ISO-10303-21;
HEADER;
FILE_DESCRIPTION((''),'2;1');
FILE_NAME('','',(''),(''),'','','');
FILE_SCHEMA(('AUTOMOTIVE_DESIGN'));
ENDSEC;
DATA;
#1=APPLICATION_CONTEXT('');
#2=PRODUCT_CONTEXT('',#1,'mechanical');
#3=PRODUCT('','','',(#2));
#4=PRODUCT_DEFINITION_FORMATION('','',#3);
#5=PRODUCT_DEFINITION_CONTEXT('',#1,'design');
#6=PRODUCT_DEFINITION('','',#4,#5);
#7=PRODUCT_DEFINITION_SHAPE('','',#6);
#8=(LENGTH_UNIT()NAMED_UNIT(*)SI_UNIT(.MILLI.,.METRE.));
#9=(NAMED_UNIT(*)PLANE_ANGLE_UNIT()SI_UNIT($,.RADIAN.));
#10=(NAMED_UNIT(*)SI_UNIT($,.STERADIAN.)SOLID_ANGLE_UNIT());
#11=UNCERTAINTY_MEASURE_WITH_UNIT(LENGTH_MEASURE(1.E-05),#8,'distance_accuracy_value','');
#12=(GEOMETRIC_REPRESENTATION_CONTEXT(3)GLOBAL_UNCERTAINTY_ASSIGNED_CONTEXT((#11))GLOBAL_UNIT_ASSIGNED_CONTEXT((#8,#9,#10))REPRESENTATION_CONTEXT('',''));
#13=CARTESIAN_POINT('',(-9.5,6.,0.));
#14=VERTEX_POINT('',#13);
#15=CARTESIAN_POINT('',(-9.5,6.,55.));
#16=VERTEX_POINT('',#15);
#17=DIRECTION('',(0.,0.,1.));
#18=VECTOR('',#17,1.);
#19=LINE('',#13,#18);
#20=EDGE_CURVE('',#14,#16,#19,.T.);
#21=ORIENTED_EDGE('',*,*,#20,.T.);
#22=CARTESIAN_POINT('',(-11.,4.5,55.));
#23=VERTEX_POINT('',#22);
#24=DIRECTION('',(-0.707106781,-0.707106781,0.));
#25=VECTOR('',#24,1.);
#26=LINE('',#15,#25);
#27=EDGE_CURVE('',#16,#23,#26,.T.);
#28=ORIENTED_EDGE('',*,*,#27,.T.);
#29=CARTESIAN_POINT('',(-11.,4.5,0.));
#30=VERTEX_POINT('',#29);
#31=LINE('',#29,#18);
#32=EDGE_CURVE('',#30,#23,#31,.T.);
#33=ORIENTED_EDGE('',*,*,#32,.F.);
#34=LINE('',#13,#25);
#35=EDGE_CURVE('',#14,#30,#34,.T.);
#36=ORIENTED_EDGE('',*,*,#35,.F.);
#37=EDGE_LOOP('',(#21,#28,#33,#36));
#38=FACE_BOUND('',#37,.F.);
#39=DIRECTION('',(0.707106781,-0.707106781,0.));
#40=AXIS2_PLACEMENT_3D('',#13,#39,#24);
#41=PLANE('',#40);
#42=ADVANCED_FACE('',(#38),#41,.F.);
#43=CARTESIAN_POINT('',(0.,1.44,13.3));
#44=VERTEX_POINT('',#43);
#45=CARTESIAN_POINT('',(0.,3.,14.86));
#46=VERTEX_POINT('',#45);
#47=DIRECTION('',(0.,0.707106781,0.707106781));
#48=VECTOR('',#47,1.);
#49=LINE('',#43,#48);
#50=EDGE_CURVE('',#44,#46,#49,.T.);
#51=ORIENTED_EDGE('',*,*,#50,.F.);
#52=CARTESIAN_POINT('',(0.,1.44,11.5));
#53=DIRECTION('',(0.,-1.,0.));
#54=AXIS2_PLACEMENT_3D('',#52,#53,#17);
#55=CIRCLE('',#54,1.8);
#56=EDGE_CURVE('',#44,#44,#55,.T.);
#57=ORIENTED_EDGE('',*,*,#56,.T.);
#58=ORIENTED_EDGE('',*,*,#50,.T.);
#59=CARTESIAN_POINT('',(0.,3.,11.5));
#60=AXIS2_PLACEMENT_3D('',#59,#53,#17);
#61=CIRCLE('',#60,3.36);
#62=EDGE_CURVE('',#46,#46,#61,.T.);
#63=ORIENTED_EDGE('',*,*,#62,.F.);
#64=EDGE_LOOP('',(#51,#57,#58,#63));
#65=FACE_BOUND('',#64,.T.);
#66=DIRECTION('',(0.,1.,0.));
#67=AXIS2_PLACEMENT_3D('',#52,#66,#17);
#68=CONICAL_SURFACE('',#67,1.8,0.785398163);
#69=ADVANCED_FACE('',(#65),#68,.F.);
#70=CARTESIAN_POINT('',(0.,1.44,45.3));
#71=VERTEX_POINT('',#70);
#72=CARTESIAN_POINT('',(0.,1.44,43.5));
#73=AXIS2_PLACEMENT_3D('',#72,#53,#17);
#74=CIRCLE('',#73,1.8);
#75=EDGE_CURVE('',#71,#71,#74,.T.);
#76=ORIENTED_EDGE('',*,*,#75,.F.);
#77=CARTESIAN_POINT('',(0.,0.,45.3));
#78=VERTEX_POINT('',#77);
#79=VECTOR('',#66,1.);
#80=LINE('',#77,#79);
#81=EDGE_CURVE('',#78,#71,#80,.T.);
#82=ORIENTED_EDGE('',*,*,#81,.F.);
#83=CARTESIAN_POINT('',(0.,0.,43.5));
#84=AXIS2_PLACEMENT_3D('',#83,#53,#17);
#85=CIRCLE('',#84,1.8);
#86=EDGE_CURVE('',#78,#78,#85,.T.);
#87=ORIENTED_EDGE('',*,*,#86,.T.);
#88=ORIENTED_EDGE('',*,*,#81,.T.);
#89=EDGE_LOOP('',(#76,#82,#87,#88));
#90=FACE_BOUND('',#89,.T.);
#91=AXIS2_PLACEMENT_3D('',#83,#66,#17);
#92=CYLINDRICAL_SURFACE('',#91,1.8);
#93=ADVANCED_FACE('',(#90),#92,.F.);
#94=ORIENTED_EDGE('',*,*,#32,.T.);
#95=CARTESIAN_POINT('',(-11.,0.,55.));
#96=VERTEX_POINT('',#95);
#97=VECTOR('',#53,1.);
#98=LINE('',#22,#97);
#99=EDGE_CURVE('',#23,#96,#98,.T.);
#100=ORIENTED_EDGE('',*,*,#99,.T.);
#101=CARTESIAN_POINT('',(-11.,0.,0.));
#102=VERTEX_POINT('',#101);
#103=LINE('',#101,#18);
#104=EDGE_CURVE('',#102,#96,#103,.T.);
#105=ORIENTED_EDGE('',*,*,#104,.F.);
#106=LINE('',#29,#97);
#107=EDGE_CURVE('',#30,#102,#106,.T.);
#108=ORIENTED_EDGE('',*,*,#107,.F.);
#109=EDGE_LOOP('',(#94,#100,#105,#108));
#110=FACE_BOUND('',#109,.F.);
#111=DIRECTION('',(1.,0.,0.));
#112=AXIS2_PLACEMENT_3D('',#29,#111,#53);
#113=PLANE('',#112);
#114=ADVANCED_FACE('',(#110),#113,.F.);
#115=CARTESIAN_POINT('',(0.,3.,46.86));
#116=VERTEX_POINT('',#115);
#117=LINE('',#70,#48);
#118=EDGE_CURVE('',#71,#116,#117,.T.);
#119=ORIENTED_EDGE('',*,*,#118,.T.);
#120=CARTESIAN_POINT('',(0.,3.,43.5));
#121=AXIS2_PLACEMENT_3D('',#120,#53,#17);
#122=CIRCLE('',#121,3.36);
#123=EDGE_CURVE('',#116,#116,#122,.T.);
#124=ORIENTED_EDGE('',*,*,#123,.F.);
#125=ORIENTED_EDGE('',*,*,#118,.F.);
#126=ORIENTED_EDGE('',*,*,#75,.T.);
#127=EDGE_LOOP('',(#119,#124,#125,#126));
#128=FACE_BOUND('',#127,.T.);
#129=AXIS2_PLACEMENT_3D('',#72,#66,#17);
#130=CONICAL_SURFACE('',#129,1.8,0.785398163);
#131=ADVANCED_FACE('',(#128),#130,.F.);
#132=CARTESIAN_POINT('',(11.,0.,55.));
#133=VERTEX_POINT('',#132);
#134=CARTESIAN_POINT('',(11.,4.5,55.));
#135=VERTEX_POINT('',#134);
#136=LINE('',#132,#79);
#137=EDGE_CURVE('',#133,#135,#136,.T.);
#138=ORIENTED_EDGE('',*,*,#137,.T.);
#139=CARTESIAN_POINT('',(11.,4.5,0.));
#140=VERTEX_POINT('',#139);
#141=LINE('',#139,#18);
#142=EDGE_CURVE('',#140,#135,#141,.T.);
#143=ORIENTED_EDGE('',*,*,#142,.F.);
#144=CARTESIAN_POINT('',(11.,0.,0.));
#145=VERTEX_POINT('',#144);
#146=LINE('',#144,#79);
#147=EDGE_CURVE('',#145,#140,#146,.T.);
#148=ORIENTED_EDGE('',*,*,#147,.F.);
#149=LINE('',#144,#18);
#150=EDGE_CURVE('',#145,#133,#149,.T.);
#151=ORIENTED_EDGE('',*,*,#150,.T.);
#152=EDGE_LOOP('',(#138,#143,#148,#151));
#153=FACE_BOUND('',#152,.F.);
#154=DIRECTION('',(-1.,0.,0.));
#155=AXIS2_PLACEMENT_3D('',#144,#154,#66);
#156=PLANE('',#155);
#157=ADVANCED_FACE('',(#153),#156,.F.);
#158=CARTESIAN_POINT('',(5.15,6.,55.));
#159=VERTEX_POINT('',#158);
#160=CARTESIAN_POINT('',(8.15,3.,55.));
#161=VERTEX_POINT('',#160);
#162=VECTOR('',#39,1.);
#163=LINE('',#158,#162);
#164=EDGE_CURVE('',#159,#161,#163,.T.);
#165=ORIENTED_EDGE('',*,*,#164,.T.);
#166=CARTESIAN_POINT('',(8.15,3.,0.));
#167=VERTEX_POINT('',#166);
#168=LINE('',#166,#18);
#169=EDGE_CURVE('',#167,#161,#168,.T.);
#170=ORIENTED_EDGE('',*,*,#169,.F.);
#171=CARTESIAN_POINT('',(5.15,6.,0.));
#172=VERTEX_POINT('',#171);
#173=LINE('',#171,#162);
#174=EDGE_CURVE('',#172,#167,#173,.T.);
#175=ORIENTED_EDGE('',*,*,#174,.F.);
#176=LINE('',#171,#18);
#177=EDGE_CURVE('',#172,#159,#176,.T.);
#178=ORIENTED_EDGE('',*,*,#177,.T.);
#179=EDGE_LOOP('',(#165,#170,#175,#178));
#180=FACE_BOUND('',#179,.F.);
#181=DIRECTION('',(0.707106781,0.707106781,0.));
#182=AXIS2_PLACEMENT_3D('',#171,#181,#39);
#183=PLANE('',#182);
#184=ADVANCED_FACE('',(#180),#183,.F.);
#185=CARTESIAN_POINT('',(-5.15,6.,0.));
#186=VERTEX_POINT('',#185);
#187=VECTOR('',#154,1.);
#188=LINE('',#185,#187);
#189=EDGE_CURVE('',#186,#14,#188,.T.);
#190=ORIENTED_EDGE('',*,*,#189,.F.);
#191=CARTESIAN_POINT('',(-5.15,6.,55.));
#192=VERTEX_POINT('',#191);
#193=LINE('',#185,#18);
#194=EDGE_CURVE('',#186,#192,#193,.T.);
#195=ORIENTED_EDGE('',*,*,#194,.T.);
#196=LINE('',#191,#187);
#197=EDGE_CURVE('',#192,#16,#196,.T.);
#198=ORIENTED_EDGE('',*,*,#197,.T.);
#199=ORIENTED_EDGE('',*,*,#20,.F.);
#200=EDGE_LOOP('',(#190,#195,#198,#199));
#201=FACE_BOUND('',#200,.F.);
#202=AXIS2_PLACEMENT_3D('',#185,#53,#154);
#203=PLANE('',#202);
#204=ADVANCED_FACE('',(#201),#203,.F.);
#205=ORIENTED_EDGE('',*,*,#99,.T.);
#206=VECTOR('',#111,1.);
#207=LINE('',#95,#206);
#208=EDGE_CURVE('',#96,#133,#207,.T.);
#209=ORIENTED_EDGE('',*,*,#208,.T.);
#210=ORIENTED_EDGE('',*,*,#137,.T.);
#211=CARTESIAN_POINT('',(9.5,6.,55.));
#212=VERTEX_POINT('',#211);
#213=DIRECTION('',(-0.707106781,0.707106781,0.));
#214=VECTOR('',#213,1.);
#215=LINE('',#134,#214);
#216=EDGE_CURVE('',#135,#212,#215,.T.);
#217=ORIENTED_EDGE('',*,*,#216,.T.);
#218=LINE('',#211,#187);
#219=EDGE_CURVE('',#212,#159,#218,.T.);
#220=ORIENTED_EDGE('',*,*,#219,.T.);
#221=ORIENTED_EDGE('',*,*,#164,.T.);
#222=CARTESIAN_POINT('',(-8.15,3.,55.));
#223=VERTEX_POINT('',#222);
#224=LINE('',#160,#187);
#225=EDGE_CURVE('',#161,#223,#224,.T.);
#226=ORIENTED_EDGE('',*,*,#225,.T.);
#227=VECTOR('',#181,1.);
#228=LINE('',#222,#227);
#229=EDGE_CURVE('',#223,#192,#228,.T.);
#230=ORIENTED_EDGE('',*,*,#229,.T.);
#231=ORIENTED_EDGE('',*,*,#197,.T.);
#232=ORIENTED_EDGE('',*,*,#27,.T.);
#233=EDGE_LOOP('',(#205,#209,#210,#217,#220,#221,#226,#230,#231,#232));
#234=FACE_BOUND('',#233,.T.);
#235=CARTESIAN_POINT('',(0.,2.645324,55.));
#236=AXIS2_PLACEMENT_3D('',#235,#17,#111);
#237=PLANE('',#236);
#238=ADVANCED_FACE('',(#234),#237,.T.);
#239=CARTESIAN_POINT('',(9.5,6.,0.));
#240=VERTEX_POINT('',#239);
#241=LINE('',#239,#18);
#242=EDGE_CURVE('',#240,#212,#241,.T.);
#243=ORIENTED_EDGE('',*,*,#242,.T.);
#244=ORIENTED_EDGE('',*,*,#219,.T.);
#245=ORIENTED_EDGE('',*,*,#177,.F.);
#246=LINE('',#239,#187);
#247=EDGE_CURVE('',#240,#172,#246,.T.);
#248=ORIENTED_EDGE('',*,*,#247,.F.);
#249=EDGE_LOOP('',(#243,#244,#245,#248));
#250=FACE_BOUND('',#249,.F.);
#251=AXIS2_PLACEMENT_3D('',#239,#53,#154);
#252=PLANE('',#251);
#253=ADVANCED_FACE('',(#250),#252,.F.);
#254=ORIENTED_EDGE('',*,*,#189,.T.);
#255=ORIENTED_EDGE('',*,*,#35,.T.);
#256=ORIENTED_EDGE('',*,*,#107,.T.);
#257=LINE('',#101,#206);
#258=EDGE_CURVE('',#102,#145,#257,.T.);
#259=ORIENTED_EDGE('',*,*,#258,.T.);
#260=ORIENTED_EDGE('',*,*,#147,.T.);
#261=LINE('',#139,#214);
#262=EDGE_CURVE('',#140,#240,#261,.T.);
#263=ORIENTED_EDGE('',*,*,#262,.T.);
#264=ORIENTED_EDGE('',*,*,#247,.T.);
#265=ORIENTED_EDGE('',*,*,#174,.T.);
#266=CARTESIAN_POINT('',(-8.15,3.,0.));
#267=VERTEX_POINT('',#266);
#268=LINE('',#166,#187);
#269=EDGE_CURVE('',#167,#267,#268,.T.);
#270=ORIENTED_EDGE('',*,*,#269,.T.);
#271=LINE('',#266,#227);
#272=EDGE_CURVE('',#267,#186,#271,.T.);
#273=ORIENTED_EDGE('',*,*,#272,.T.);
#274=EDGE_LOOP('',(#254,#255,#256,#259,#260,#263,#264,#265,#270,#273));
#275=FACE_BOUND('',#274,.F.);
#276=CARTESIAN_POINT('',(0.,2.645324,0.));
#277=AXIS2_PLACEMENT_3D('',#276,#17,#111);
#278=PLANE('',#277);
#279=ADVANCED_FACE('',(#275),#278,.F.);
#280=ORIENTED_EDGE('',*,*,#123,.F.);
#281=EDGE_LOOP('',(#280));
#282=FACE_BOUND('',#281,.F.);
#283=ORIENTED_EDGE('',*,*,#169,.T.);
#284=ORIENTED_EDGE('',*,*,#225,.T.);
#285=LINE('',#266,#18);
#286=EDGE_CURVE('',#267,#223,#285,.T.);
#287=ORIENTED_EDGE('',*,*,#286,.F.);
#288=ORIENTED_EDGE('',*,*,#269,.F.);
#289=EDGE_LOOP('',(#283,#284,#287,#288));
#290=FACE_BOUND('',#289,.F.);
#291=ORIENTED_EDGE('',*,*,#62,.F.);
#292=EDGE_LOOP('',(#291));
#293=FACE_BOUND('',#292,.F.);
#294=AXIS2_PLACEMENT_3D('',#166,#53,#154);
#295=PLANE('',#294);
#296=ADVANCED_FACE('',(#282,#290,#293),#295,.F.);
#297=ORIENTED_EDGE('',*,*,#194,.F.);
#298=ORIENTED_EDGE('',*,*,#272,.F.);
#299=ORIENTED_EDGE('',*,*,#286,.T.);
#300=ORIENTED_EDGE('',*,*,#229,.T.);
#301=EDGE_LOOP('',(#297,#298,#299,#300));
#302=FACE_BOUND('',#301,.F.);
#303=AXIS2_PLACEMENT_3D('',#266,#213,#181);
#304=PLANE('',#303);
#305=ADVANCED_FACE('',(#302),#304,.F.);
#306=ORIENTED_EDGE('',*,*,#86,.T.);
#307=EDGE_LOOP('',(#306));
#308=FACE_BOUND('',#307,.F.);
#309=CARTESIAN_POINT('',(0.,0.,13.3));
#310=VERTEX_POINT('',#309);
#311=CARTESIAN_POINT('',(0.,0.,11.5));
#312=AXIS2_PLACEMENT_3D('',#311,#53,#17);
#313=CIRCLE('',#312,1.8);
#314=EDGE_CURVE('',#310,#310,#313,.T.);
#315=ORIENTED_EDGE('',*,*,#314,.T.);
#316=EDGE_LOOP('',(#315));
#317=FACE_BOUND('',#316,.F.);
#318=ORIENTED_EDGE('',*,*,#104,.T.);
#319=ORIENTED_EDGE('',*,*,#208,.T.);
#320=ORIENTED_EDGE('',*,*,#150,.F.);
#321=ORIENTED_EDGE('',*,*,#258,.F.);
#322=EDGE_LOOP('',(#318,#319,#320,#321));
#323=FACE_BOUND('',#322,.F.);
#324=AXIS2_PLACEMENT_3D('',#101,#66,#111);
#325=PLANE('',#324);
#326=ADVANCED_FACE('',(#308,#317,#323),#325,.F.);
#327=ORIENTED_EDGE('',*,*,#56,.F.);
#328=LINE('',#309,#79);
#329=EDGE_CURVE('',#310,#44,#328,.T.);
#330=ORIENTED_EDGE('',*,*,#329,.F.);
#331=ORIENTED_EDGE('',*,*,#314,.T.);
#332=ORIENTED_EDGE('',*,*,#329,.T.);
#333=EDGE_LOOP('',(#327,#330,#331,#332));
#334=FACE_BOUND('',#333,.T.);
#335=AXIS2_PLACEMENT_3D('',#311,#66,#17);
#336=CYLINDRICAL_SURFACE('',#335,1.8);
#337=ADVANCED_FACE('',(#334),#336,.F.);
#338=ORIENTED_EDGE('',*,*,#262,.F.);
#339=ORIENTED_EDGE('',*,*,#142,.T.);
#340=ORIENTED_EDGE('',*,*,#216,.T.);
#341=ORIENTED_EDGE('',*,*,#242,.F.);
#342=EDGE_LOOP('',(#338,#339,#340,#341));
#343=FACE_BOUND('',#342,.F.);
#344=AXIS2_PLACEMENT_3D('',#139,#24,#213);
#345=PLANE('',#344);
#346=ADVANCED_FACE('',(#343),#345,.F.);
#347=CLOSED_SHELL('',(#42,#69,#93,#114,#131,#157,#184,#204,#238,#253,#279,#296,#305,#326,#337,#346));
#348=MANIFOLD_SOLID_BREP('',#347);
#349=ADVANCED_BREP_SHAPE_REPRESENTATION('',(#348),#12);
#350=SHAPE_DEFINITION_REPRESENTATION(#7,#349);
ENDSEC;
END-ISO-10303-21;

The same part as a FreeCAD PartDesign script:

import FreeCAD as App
import Part
import Sketcher

V = App.Vector
Q = App.Units.Quantity

doc = App.newDocument("Part")
params = doc.addObject("Spreadsheet::Sheet", "Params")
for row, (alias, value) in enumerate([
    ("sketch1_width", "22 mm"),
    ("sketch1_width2", "16.3 mm"),
    ("sketch1_height", "4.5 mm"),
    ("pad1_length", "55 mm"),
    ("sketch2_width", "3 mm"),
    ("sketch2_height", "1.8 mm"),
    ("sketch2_width2", "1.44 mm"),
    ("groove_angle", "360 deg"),
    ("linearpattern_pitch", "32 mm"),
], start=1):
    params.set(f"A{row}", alias)
    params.set(f"B{row}", "=" + value)
    params.setAlias(f"B{row}", alias)

body = doc.addObject("PartDesign::Body", "Body")

sketch1 = body.newObject("Sketcher::SketchObject", "Sketch")
sketch1.AttachmentSupport = (doc.getObject("XY_Plane"), [""])
sketch1.MapMode = "FlatFace"
sketch1.addGeometry([
    Part.LineSegment(V(-11, 0, 0), V(11, 0, 0)),
    Part.LineSegment(V(11, 0, 0), V(11, 4.5, 0)),
    Part.LineSegment(V(11, 4.5, 0), V(9.5, 6, 0)),
    Part.LineSegment(V(9.5, 6, 0), V(5.2, 6, 0)),
    Part.LineSegment(V(5.2, 6, 0), V(8.2, 3, 0)),
    Part.LineSegment(V(8.2, 3, 0), V(-8.2, 3, 0)),
    Part.LineSegment(V(-8.2, 3, 0), V(-5.2, 6, 0)),
    Part.LineSegment(V(-5.2, 6, 0), V(-9.5, 6, 0)),
    Part.LineSegment(V(-9.5, 6, 0), V(-11, 4.5, 0)),
    Part.LineSegment(V(-11, 4.5, 0), V(-11, 0, 0)),
], False)
sketch1.addConstraint([
    Sketcher.Constraint("Coincident", 0, 2, 1, 1),
    Sketcher.Constraint("Coincident", 1, 2, 2, 1),
    Sketcher.Constraint("Coincident", 2, 2, 3, 1),
    Sketcher.Constraint("Coincident", 3, 2, 4, 1),
    Sketcher.Constraint("Coincident", 4, 2, 5, 1),
    Sketcher.Constraint("Coincident", 5, 2, 6, 1),
    Sketcher.Constraint("Coincident", 6, 2, 7, 1),
    Sketcher.Constraint("Coincident", 7, 2, 8, 1),
    Sketcher.Constraint("Coincident", 8, 2, 9, 1),
    Sketcher.Constraint("Coincident", 9, 2, 0, 1),
    Sketcher.Constraint("Horizontal", 0),
    Sketcher.Constraint("Vertical", 1),
    Sketcher.Constraint("Horizontal", 3),
    Sketcher.Constraint("Horizontal", 5),
    Sketcher.Constraint("Horizontal", 7),
    Sketcher.Constraint("Vertical", 9),
    Sketcher.Constraint("Symmetric", 0, 2, 9, 2, -1, 1),
    Sketcher.Constraint("Symmetric", 3, 2, 6, 2, -2),
    Sketcher.Constraint("Parallel", 2, 4),
    Sketcher.Constraint("Perpendicular", 4, 6),
    Sketcher.Constraint("Parallel", 6, 8),
    Sketcher.Constraint("Horizontal", 1, 2, 8, 2),
    Sketcher.Constraint("Equal", 3, 7),
    Sketcher.Constraint("DistanceX", 0, 1, 0, 2, Q("22 mm")),
    Sketcher.Constraint("DistanceX", 5, 2, 5, 1, Q("16.3 mm")),
    Sketcher.Constraint("DistanceY", 1, 1, 1, 2, Q("4.5 mm")),
    Sketcher.Constraint("DistanceY", -1, 1, 2, 2, Q("6 mm")),
    Sketcher.Constraint("DistanceY", -1, 1, 4, 2, Q("3 mm")),
])
sketch1.setExpression("Constraints[23]", "Params.sketch1_width")
sketch1.setExpression("Constraints[24]", "Params.sketch1_width2")
sketch1.setExpression("Constraints[25]", "Params.sketch1_height")
pad1 = body.newObject("PartDesign::Pad", "Pad")
pad1.Profile = sketch1
pad1.setExpression("Length", "Params.pad1_length")

sketch2 = body.newObject("Sketcher::SketchObject", "Sketch001")
sketch2.AttachmentSupport = (doc.getObject("YZ_Plane"), [""])
sketch2.MapMode = "FlatFace"
sketch2.addGeometry([
    Part.LineSegment(V(0, 11.5, 0), V(3, 11.5, 0)),
    Part.LineSegment(V(3, 11.5, 0), V(3, 14.9, 0)),
    Part.LineSegment(V(3, 14.9, 0), V(1.4, 13.3, 0)),
    Part.LineSegment(V(1.4, 13.3, 0), V(0, 13.3, 0)),
    Part.LineSegment(V(0, 13.3, 0), V(0, 11.5, 0)),
], False)
sketch2.addGeometry(Part.LineSegment(V(3, 11.5, 0), V(0, 11.5, 0)), True)
sketch2.addConstraint([
    Sketcher.Constraint("Coincident", 0, 2, 1, 1),
    Sketcher.Constraint("Coincident", 1, 2, 2, 1),
    Sketcher.Constraint("Coincident", 2, 2, 3, 1),
    Sketcher.Constraint("Coincident", 3, 2, 4, 1),
    Sketcher.Constraint("Coincident", 4, 2, 0, 1),
    Sketcher.Constraint("Horizontal", 0),
    Sketcher.Constraint("Vertical", 1),
    Sketcher.Constraint("Horizontal", 3),
    Sketcher.Constraint("Vertical", 4),
    Sketcher.Constraint("Horizontal", 5),
    Sketcher.Constraint("Coincident", 5, 1, 0, 2),
    Sketcher.Constraint("PointOnObject", 3, 2, -2),
    Sketcher.Constraint("PointOnObject", 5, 2, -2),
    Sketcher.Constraint("DistanceX", 0, 1, 0, 2, Q("3 mm")),
    Sketcher.Constraint("Angle", 2, Q("-135 deg")),
    Sketcher.Constraint("DistanceY", 4, 2, 4, 1, Q("1.8 mm")),
    Sketcher.Constraint("DistanceX", 3, 2, 3, 1, Q("1.44 mm")),
    Sketcher.Constraint("DistanceY", -1, 1, 0, 2, Q("11.5 mm")),
])
sketch2.setExpression("Constraints[13]", "Params.sketch2_width")
sketch2.setExpression("Constraints[15]", "Params.sketch2_height")
sketch2.setExpression("Constraints[16]", "Params.sketch2_width2")
groove = body.newObject("PartDesign::Groove", "Groove")
groove.Profile = sketch2
groove.ReferenceAxis = (sketch2, ["Axis0"])
groove.setExpression("Angle", "Params.groove_angle")
doc.recompute()

linearpattern = body.newObject("PartDesign::LinearPattern", "LinearPattern")
linearpattern.Originals = [groove]
linearpattern.Direction = (doc.getObject("Z_Axis"), [""])
linearpattern.Mode = "offset"
linearpattern.setExpression("Offset", "Params.linearpattern_pitch")
linearpattern.Occurrences = 2
body.Tip = linearpattern

doc.recompute()
